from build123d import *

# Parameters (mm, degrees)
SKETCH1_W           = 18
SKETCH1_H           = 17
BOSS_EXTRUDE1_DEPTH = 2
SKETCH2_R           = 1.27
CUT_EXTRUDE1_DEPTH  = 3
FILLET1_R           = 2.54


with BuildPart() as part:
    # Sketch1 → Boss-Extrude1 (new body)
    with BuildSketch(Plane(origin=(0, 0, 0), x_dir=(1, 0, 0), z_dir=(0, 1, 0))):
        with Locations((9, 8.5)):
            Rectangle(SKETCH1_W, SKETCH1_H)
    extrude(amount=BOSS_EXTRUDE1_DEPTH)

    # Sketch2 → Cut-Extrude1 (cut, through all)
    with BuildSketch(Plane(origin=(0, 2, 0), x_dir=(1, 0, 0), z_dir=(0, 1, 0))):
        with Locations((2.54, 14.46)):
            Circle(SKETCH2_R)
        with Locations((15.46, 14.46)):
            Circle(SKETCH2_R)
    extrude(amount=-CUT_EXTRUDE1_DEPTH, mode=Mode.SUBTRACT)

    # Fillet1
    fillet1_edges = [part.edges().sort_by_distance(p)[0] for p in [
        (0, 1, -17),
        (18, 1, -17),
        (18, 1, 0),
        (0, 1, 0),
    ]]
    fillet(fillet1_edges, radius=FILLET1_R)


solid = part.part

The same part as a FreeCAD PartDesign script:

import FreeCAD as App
import Part
import Sketcher
Q = App.Units.Quantity


def edges_at(feature, points):
    """Names of the edges that pass closest to the given points."""
    edges = feature.Shape.Edges
    near = lambda p: min(range(len(edges)), key=lambda i: edges[i].distToShape(Part.Vertex(*p))[0])
    return sorted({f"Edge{near(p) + 1}" for p in points})

doc = App.newDocument("Part")
body = doc.addObject("PartDesign::Body", "Body")

# Sketch on XZ plane
sketch1 = doc.addObject("Sketcher::SketchObject", "Sketch")
body.addObject(sketch1)
sketch1.AttachmentSupport = (doc.XZ_Plane, [""])
sketch1.MapMode = "FlatFace"
sketch1.addGeometry([
    Part.LineSegment(App.Vector(0, -17, 0), App.Vector(0, 0, 0)),
    Part.LineSegment(App.Vector(0, 0, 0), App.Vector(18, 0, 0)),
    Part.LineSegment(App.Vector(18, 0, 0), App.Vector(18, -17, 0)),
    Part.LineSegment(App.Vector(18, -17, 0), App.Vector(0, -17, 0)),
], False)
sketch1.addConstraint([
    Sketcher.Constraint("Coincident", 0, 2, 1, 1),
    Sketcher.Constraint("Coincident", 1, 2, 2, 1),
    Sketcher.Constraint("Coincident", 2, 2, 3, 1),
    Sketcher.Constraint("Coincident", 3, 2, 0, 1),
    Sketcher.Constraint("Vertical", 0),
    Sketcher.Constraint("Horizontal", 1),
    Sketcher.Constraint("Vertical", 2),
    Sketcher.Constraint("Horizontal", 3),
    Sketcher.Constraint("Coincident", 0, 2, -1, 1),
    Sketcher.Constraint("DistanceX", 1, 1, 1, 2, Q("18 mm")),
    Sketcher.Constraint("DistanceY", 0, 1, 0, 2, Q("17 mm")),
])
pad1 = doc.addObject("PartDesign::Pad", "Pad")
body.addObject(pad1)
pad1.Profile = sketch1
pad1.Length = 2
pad1.Reversed = True

# Sketch on XZ plane
sketch2 = doc.addObject("Sketcher::SketchObject", "Sketch001")
body.addObject(sketch2)
sketch2.AttachmentSupport = (doc.XZ_Plane, [""])
sketch2.MapMode = "FlatFace"
sketch2.AttachmentOffset = App.Placement(App.Vector(0, 0, -2), App.Rotation())
sketch2.addGeometry([
    Part.Circle(App.Vector(2.54, -14.46, 0), App.Vector(0, 0, 1), 1.27),
    Part.Circle(App.Vector(15.46, -14.46, 0), App.Vector(0, 0, 1), 1.27),
], False)
sketch2.addConstraint([
    Sketcher.Constraint("Equal", 0, 1),
    Sketcher.Constraint("Horizontal", 0, 3, 1, 3),
    Sketcher.Constraint("Diameter", 0, Q("2.54 mm")),
    Sketcher.Constraint("DistanceX", -1, 1, 0, 3, Q("2.54 mm")),
    Sketcher.Constraint("DistanceY", 0, 3, -1, 1, Q("14.46 mm")),
    Sketcher.Constraint("DistanceX", -1, 1, 1, 3, Q("15.46 mm")),
])
pocket1 = doc.addObject("PartDesign::Pocket", "Pocket")
body.addObject(pocket1)
pocket1.Profile = sketch2
pocket1.Type = "ThroughAll"
pocket1.Reversed = True
doc.recompute()

fillet = doc.addObject("PartDesign::Fillet", "Fillet")
body.addObject(fillet)
fillet.Base = (pocket1, edges_at(pocket1, [
    (0, 1, -17),
    (18, 1, -17),
    (18, 1, 0),
    (0, 1, 0),
]))
fillet.Radius = 2.54

doc.recompute()
